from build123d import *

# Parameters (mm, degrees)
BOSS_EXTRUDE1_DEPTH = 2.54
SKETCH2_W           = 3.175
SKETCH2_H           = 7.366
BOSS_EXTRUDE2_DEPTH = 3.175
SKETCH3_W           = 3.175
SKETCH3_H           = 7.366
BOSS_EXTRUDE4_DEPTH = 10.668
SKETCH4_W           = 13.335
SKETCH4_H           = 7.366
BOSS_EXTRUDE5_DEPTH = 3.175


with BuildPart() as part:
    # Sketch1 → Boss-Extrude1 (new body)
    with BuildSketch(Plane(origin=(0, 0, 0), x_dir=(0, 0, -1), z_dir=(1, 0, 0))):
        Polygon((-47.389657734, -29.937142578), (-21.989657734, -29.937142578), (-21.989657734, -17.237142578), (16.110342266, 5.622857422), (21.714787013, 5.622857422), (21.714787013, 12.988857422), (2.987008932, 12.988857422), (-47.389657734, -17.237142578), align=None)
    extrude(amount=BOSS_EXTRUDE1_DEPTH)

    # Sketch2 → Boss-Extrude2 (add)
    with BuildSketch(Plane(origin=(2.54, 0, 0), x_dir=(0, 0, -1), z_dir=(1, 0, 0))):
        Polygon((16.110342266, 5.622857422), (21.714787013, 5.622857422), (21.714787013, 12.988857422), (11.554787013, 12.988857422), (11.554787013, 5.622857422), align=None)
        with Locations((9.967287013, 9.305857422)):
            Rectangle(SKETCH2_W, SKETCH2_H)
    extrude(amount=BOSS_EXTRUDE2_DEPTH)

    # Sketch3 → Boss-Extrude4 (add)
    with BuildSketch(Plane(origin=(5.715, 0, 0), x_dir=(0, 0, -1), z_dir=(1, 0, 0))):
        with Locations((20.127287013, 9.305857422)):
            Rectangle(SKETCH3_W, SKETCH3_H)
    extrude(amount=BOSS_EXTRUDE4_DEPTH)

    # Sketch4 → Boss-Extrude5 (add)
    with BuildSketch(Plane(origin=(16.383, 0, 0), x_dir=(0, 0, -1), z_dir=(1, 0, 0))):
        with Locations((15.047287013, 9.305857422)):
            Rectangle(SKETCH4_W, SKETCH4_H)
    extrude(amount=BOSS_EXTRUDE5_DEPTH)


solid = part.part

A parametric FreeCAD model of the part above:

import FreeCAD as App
import Part
import Sketcher
Q = App.Units.Quantity

doc = App.newDocument("Part")
body = doc.addObject("PartDesign::Body", "Body")

sketch1 = body.newObject("Sketcher::SketchObject", "Sketch")
sketch1.AttachmentSupport = (doc.getObject("YZ_Plane"), [""])
sketch1.MapMode = "FlatFace"
sketch1.addGeometry(Part.LineSegment(App.Vector(-30, 47, 0), App.Vector(-30, 22, 0)), False)
sketch1.addGeometry(Part.LineSegment(App.Vector(-30, 22, 0), App.Vector(-17, 22, 0)), False)
sketch1.addGeometry(Part.LineSegment(App.Vector(-17, 22, 0), App.Vector(6, -16, 0)), False)
sketch1.addGeometry(Part.LineSegment(App.Vector(6, -16, 0), App.Vector(6, -22, 0)), False)
sketch1.addGeometry(Part.LineSegment(App.Vector(6, -22, 0), App.Vector(13, -22, 0)), False)
sketch1.addGeometry(Part.LineSegment(App.Vector(13, -22, 0), App.Vector(13, -3, 0)), False)
sketch1.addGeometry(Part.LineSegment(App.Vector(13, -3, 0), App.Vector(-17, 47, 0)), False)
sketch1.addGeometry(Part.LineSegment(App.Vector(-17, 47, 0), App.Vector(-30, 47, 0)), False)
sketch1.addConstraint(Sketcher.Constraint("Coincident", 0, 2, 1, 1))
sketch1.addConstraint(Sketcher.Constraint("Coincident", 1, 2, 2, 1))
sketch1.addConstraint(Sketcher.Constraint("Coincident", 2, 2, 3, 1))
sketch1.addConstraint(Sketcher.Constraint("Coincident", 3, 2, 4, 1))
sketch1.addConstraint(Sketcher.Constraint("Coincident", 4, 2, 5, 1))
sketch1.addConstraint(Sketcher.Constraint("Coincident", 5, 2, 6, 1))
sketch1.addConstraint(Sketcher.Constraint("Coincident", 6, 2, 7, 1))
sketch1.addConstraint(Sketcher.Constraint("Coincident", 7, 2, 0, 1))
sketch1.addConstraint(Sketcher.Constraint("Vertical", 0))
sketch1.addConstraint(Sketcher.Constraint("Horizontal", 1))
sketch1.addConstraint(Sketcher.Constraint("Vertical", 3))
sketch1.addConstraint(Sketcher.Constraint("Horizontal", 4))
sketch1.addConstraint(Sketcher.Constraint("Vertical", 5))
sketch1.addConstraint(Sketcher.Constraint("Horizontal", 7))
sketch1.addConstraint(Sketcher.Constraint("Parallel", 2, 6))
sketch1.addConstraint(Sketcher.Constraint("Vertical", 1, 2, 6, 2))
sketch1.addConstraint(Sketcher.Constraint("DistanceY", 0, 2, 0, 1, Q("1 in")))
sketch1.addConstraint(Sketcher.Constraint("DistanceX", 1, 1, 1, 2, Q("0.5 in")))
sketch1.addConstraint(Sketcher.Constraint("DistanceX", 4, 1, 4, 2, Q("0.29 in")))
sketch1.addConstraint(Sketcher.Constraint("DistanceX", 1, 2, 2, 2, Q("0.9 in")))
sketch1.addConstraint(Sketcher.Constraint("DistanceY", 2, 2, 1, 2, Q("1.5 in")))
sketch1.addConstraint(Sketcher.Constraint("DistanceY", 5, 1, 5, 2, 18.727778))
sketch1.addConstraint(Sketcher.Constraint("DistanceY", 5, 2, -1, 1, 2.987009))
sketch1.addConstraint(Sketcher.Constraint("DistanceX", 0, 2, -1, 1, 29.937143))
pad1 = body.newObject("PartDesign::Pad", "Pad")
pad1.Profile = sketch1
pad1.Length = Q("0.1 in")

sketch2 = body.newObject("Sketcher::SketchObject", "Sketch001")
sketch2.AttachmentSupport = (doc.getObject("YZ_Plane"), [""])
sketch2.MapMode = "FlatFace"
sketch2.AttachmentOffset = App.Placement(App.Vector(0, 0, 0.1 * 25.4), App.Rotation())
sketch2.addGeometry(Part.LineSegment(App.Vector(6, -22, 0), App.Vector(13, -22, 0)), False)
sketch2.addGeometry(Part.LineSegment(App.Vector(13, -22, 0), App.Vector(13, -8, 0)), False)
sketch2.addGeometry(Part.LineSegment(App.Vector(13, -8, 0), App.Vector(6, -8, 0)), False)
sketch2.addGeometry(Part.LineSegment(App.Vector(6, -8, 0), App.Vector(6, -22, 0)), False)
sketch2.addConstraint(Sketcher.Constraint("Coincident", 0, 2, 1, 1))
sketch2.addConstraint(Sketcher.Constraint("Coincident", 1, 2, 2, 1))
sketch2.addConstraint(Sketcher.Constraint("Coincident", 2, 2, 3, 1))
sketch2.addConstraint(Sketcher.Constraint("Coincident", 3, 2, 0, 1))
sketch2.addConstraint(Sketcher.Constraint("Horizontal", 0))
sketch2.addConstraint(Sketcher.Constraint("Vertical", 1))
sketch2.addConstraint(Sketcher.Constraint("Horizontal", 2))
sketch2.addConstraint(Sketcher.Constraint("Vertical", 3))
sketch2.addConstraint(Sketcher.Constraint("DistanceX", 0, 1, 0, 2, Q("0.29 in")))
sketch2.addConstraint(Sketcher.Constraint("DistanceY", 1, 1, 1, 2, Q("0.525 in")))
sketch2.addConstraint(Sketcher.Constraint("DistanceX", -1, 1, 0, 2, 12.988857))
sketch2.addConstraint(Sketcher.Constraint("DistanceY", 0, 2, -1, 1, 21.714787))
pad2 = body.newObject("PartDesign::Pad", "Pad001")
pad2.Profile = sketch2
pad2.Length = Q("0.125 in")

sketch3 = body.newObject("Sketcher::SketchObject", "Sketch002")
sketch3.AttachmentSupport = (doc.getObject("YZ_Plane"), [""])
sketch3.MapMode = "FlatFace"
sketch3.AttachmentOffset = App.Placement(App.Vector(0, 0, 0.225 * 25.4), App.Rotation())
sketch3.addGeometry(Part.LineSegment(App.Vector(13, -18.5, 0), App.Vector(5.6, -18.5, 0)), False)
sketch3.addGeometry(Part.LineSegment(App.Vector(5.6, -18.5, 0), App.Vector(5.6, -21.7, 0)), False)
sketch3.addGeometry(Part.LineSegment(App.Vector(5.6, -21.7, 0), App.Vector(13, -21.7, 0)), False)
sketch3.addGeometry(Part.LineSegment(App.Vector(13, -21.7, 0), App.Vector(13, -18.5, 0)), False)
sketch3.addConstraint(Sketcher.Constraint("Coincident", 0, 2, 1, 1))
sketch3.addConstraint(Sketcher.Constraint("Coincident", 1, 2, 2, 1))
sketch3.addConstraint(Sketcher.Constraint("Coincident", 2, 2, 3, 1))
sketch3.addConstraint(Sketcher.Constraint("Coincident", 3, 2, 0, 1))
sketch3.addConstraint(Sketcher.Constraint("Horizontal", 0))
sketch3.addConstraint(Sketcher.Constraint("Vertical", 1))
sketch3.addConstraint(Sketcher.Constraint("Horizontal", 2))
sketch3.addConstraint(Sketcher.Constraint("Vertical", 3))
sketch3.addConstraint(Sketcher.Constraint("DistanceX", 0, 2, 0, 1, Q("0.29 in")))
sketch3.addConstraint(Sketcher.Constraint("DistanceY", 1, 2, 1, 1, Q("0.125 in")))
sketch3.addConstraint(Sketcher.Constraint("DistanceX", -1, 1, 0, 2, 5.622857))
sketch3.addConstraint(Sketcher.Constraint("DistanceY", 0, 2, -1, 1, 18.539787))
pad3 = body.newObject("PartDesign::Pad", "Pad002")
pad3.Profile = sketch3
pad3.Length = Q("0.42 in")

sketch4 = body.newObject("Sketcher::SketchObject", "Sketch003")
sketch4.AttachmentSupport = (doc.getObject("YZ_Plane"), [""])
sketch4.MapMode = "FlatFace"
sketch4.AttachmentOffset = App.Placement(App.Vector(0, 0, 0.645 * 25.4), App.Rotation())
sketch4.addGeometry(Part.LineSegment(App.Vector(13, -8, 0), App.Vector(6, -8, 0)), False)
sketch4.addGeometry(Part.LineSegment(App.Vector(6, -8, 0), App.Vector(6, -22, 0)), False)
sketch4.addGeometry(Part.LineSegment(App.Vector(6, -22, 0), App.Vector(13, -22, 0)), False)
sketch4.addGeometry(Part.LineSegment(App.Vector(13, -22, 0), App.Vector(13, -8, 0)), False)
sketch4.addConstraint(Sketcher.Constraint("Coincident", 0, 2, 1, 1))
sketch4.addConstraint(Sketcher.Constraint("Coincident", 1, 2, 2, 1))
sketch4.addConstraint(Sketcher.Constraint("Coincident", 2, 2, 3, 1))
sketch4.addConstraint(Sketcher.Constraint("Coincident", 3, 2, 0, 1))
sketch4.addConstraint(Sketcher.Constraint("Horizontal", 0))
sketch4.addConstraint(Sketcher.Constraint("Vertical", 1))
sketch4.addConstraint(Sketcher.Constraint("Horizontal", 2))
sketch4.addConstraint(Sketcher.Constraint("Vertical", 3))
sketch4.addConstraint(Sketcher.Constraint("DistanceX", 0, 2, 0, 1, Q("0.29 in")))
sketch4.addConstraint(Sketcher.Constraint("DistanceY", 1, 2, 1, 1, Q("0.525 in")))
sketch4.addConstraint(Sketcher.Constraint("DistanceX", -1, 1, 0, 2, 5.622857))
sketch4.addConstraint(Sketcher.Constraint("DistanceY", 0, 2, -1, 1, 8.379787))
pad4 = body.newObject("PartDesign::Pad", "Pad003")
pad4.Profile = sketch4
pad4.Length = Q("0.125 in")

doc.recompute()
